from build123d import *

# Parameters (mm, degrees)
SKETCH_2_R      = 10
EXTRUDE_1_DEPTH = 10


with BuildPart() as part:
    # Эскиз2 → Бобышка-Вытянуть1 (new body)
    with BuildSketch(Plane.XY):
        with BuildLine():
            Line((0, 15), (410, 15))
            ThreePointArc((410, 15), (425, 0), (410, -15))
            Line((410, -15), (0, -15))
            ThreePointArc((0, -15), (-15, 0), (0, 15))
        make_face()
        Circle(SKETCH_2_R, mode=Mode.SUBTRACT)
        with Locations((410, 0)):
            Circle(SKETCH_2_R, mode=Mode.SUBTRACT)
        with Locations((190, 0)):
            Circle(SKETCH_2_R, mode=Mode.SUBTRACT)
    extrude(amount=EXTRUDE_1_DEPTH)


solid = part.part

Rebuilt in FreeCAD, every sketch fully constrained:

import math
import FreeCAD as App
import Part
import Sketcher
Q = App.Units.Quantity

doc = App.newDocument("Part")
params = doc.addObject("Spreadsheet::Sheet", "Params")
for row, (alias, value) in enumerate([
    ("sketch1_diameter", "20 mm"),
    ("sketch1_radius", "15 mm"),
    ("sketch1_width", "410 mm"),
    ("pad1_length", "10 mm"),
], start=1):
    params.set(f"A{row}", alias)
    params.set(f"B{row}", "=" + value)
    params.setAlias(f"B{row}", alias)

body = doc.addObject("PartDesign::Body", "Body")

sketch1 = doc.addObject("Sketcher::SketchObject", "Sketch")
body.addObject(sketch1)
sketch1.AttachmentSupport = (doc.XY_Plane, [""])
sketch1.MapMode = "FlatFace"
sketch1.addGeometry([
    Part.LineSegment(App.Vector(410, 15, 0), App.Vector(0, 15, 0)),
    Part.ArcOfCircle(Part.Circle(App.Vector(0, 0, 0), App.Vector(0, 0, 1), 15), math.radians(90), math.radians(270)),
    Part.LineSegment(App.Vector(0, -15, 0), App.Vector(410, -15, 0)),
    Part.ArcOfCircle(Part.Circle(App.Vector(410, 0, 0), App.Vector(0, 0, 1), 15), math.radians(-90), math.radians(90)),
    Part.Circle(App.Vector(410, 0, 0), App.Vector(0, 0, 1), 10),
    Part.Circle(App.Vector(190, 0, 0), App.Vector(0, 0, 1), 10),
    Part.Circle(App.Vector(0, 0, 0), App.Vector(0, 0, 1), 10),
], False)
sketch1.addConstraint([
    Sketcher.Constraint("Tangent", 0, 2, 1, 1),
    Sketcher.Constraint("Tangent", 1, 2, 2, 1),
    Sketcher.Constraint("Tangent", 2, 2, 3, 1),
    Sketcher.Constraint("Tangent", 3, 2, 0, 1),
    Sketcher.Constraint("Horizontal", 0),
    Sketcher.Constraint("Horizontal", 2),
    Sketcher.Constraint("Coincident", 1, 3, -1, 1),
    Sketcher.Constraint("Coincident", 6, 3, -1, 1),
    Sketcher.Constraint("Coincident", 4, 3, 3, 3),
    Sketcher.Constraint("Equal", 4, 5),
    Sketcher.Constraint("Equal", 5, 6),
    Sketcher.Constraint("PointOnObject", 5, 3, -1),
    Sketcher.Constraint("Diameter", 4, Q("20 mm")),
    Sketcher.Constraint("Radius", 1, Q("15 mm")),
    Sketcher.Constraint("DistanceX", 0, 2, 0, 1, Q("410 mm")),
    Sketcher.Constraint("DistanceX", -1, 1, 5, 3, Q("190 mm")),
])
sketch1.setExpression("Constraints[12]", "Params.sketch1_diameter")
sketch1.setExpression("Constraints[13]", "Params.sketch1_radius")
sketch1.setExpression("Constraints[14]", "Params.sketch1_width")
pad1 = doc.addObject("PartDesign::Pad", "Pad")
body.addObject(pad1)
pad1.Profile = sketch1
pad1.setExpression("Length", "Params.pad1_length")

doc.recompute()
